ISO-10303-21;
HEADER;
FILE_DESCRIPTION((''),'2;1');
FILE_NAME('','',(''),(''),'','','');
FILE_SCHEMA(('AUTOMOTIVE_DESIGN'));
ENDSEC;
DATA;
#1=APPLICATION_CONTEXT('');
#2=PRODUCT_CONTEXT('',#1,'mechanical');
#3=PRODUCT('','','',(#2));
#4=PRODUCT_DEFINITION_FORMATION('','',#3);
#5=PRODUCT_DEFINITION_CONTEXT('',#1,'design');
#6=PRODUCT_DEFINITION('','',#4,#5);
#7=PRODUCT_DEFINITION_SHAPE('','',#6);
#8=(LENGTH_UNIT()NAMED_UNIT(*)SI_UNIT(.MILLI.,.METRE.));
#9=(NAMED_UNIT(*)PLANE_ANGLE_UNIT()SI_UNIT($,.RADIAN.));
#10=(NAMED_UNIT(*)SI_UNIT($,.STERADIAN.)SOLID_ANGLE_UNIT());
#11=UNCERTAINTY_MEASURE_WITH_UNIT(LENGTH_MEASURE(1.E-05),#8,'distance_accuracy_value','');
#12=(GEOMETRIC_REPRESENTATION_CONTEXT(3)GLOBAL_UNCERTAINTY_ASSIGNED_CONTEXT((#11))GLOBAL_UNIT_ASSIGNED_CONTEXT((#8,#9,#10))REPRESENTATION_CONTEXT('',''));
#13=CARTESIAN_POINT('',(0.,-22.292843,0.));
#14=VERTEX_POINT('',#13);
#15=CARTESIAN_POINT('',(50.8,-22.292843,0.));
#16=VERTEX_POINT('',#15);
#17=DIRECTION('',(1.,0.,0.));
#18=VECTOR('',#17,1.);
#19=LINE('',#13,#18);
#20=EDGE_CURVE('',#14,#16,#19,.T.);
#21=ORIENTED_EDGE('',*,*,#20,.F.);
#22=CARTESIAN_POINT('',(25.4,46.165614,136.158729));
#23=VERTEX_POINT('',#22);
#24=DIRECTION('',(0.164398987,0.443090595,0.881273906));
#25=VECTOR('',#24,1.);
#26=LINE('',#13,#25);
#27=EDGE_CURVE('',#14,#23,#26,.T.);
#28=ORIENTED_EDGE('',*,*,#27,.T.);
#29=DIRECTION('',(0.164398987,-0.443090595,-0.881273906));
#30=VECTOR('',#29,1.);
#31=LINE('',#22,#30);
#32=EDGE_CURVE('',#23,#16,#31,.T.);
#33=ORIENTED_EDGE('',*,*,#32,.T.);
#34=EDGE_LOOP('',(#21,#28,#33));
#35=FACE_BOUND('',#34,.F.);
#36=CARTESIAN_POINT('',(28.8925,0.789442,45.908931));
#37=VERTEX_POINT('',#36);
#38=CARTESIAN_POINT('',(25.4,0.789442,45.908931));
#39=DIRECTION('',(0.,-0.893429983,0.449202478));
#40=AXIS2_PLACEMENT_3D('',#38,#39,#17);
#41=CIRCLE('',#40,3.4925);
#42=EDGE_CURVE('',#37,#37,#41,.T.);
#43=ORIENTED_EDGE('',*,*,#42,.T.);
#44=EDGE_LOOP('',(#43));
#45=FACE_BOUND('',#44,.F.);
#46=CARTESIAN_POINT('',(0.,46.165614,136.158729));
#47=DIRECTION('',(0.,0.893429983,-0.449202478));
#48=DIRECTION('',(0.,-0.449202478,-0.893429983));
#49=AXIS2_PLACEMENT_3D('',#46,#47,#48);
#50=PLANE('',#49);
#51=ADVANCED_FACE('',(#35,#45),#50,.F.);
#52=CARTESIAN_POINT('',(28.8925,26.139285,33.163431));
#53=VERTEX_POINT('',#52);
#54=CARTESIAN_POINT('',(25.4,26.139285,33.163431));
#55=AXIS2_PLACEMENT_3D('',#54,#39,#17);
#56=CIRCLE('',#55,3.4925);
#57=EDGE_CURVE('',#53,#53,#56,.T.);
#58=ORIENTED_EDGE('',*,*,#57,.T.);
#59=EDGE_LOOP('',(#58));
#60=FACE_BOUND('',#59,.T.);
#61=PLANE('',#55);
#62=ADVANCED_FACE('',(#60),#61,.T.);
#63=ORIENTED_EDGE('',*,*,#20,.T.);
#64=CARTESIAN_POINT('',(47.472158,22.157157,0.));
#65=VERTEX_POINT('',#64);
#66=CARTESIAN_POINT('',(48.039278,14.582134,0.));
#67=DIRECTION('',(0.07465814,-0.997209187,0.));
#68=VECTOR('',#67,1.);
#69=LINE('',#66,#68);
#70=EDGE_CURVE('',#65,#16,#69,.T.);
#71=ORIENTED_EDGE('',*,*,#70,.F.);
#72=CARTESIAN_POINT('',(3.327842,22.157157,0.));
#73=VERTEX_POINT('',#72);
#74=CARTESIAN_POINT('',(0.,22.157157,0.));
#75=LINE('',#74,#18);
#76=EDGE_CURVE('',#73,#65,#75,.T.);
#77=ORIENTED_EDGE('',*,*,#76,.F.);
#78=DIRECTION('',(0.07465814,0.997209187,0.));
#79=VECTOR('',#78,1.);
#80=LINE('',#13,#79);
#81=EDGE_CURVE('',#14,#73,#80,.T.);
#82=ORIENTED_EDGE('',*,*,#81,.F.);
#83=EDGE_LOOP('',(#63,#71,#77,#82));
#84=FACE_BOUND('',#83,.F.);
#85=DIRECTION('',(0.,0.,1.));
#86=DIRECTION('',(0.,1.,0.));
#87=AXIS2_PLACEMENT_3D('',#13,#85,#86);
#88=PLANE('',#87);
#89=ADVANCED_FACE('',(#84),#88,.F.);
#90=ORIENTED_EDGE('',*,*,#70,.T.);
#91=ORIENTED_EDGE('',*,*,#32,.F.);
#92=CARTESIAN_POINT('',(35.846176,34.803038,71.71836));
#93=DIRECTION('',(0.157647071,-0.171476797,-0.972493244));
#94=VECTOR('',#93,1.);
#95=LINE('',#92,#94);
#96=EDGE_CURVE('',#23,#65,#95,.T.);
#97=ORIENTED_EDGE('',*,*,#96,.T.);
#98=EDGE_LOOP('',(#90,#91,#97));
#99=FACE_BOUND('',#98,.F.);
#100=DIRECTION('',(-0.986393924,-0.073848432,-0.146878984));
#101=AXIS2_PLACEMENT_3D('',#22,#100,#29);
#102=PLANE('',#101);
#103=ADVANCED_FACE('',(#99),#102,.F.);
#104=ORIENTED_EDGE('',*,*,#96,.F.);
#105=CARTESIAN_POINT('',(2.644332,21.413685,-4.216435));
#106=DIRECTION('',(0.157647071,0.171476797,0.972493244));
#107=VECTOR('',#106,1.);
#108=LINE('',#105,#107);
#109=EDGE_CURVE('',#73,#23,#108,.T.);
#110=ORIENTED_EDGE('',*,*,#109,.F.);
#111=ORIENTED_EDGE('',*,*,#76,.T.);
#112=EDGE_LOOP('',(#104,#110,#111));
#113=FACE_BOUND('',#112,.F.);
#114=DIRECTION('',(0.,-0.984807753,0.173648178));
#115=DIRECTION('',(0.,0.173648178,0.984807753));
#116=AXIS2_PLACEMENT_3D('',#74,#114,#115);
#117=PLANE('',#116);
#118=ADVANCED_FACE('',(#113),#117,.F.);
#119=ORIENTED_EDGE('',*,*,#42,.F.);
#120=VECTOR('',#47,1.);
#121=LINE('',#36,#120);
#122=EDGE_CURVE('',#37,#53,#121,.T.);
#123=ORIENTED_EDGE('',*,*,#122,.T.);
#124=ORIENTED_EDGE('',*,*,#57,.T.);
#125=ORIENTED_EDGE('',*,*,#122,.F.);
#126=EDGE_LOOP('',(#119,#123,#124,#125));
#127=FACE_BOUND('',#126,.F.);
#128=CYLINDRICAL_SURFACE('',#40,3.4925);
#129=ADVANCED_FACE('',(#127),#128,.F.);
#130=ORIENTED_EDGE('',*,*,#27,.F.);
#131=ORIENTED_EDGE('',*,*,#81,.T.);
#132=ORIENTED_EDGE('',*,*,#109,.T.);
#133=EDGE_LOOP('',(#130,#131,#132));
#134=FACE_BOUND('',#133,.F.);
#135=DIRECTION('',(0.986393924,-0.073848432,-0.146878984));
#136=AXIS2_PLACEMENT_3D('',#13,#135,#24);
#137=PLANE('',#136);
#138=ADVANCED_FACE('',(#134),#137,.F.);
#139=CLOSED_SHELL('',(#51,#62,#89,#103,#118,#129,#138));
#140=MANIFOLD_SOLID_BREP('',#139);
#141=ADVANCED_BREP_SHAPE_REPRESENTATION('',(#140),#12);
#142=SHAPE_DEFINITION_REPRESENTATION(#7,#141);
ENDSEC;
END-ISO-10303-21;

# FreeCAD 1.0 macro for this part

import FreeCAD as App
import Part
import Sketcher
from FreeCAD import Vector
Q = App.Units.Quantity

doc = App.newDocument("Part")
body = doc.addObject("PartDesign::Body", "Body")

# Sketch on YZ plane
sketch1 = body.newObject("Sketcher::SketchObject", "Sketch")
sketch1.AttachmentSupport = (doc.getObject("YZ_Plane"), [""])
sketch1.MapMode = "FlatFace"
sketch1.addGeometry(Part.LineSegment(Vector(46, 136, 0), Vector(-22, 0, 0)), False)
sketch1.addGeometry(Part.LineSegment(Vector(-22, 0, 0), Vector(22, 0, 0)), False)
sketch1.addGeometry(Part.LineSegment(Vector(22, 0, 0), Vector(46, 136, 0)), False)
sketch1.addConstraint(Sketcher.Constraint("Coincident", 0, 2, 1, 1))
sketch1.addConstraint(Sketcher.Constraint("Coincident", 1, 2, 2, 1))
sketch1.addConstraint(Sketcher.Constraint("Coincident", 2, 2, 0, 1))
sketch1.addConstraint(Sketcher.Constraint("Horizontal", 1))
sketch1.addConstraint(Sketcher.Constraint("PointOnObject", 0, 2, -1))
sketch1.addConstraint(Sketcher.Constraint("Distance", 0, Q("6 in")))
sketch1.addConstraint(Sketcher.Constraint("Angle", 2, Q("80 deg")))
sketch1.addConstraint(Sketcher.Constraint("DistanceX", 1, 1, 1, 2, Q("1.75 in")))
sketch1.addConstraint(Sketcher.Constraint("DistanceX", 0, 2, -1, 1, Q("22.292843 mm")))
pad1 = body.newObject("PartDesign::Pad", "Pad")
pad1.Profile = sketch1
pad1.Length = Q("2 in")

# Sketch on an angled plane
sketch2 = body.newObject("Sketcher::SketchObject", "Sketch001")
sketch2.Placement = App.Placement(Vector(0, -17.79453, 8.946808), App.Rotation(Vector(1, 0, 0), Vector(0, 0.449202478, 0.893429983), Vector(0, -0.893429983, 0.449202478), "ZXY"))
sketch2.addGeometry(Part.LineSegment(Vector(0, 142, 0), Vector(0, -10, 0)), False)
sketch2.addGeometry(Part.LineSegment(Vector(0, -10, 0), Vector(25, 142, 0)), False)
sketch2.addGeometry(Part.LineSegment(Vector(25, 142, 0), Vector(0, 142, 0)), False)
sketch2.addGeometry(Part.LineSegment(Vector(51, 142, 0), Vector(25, 142, 0)), False)
sketch2.addGeometry(Part.LineSegment(Vector(25, 142, 0), Vector(51, -10, 0)), False)
sketch2.addGeometry(Part.LineSegment(Vector(51, -10, 0), Vector(51, 142, 0)), False)
sketch2.addConstraint(Sketcher.Constraint("Coincident", 0, 2, 1, 1))
sketch2.addConstraint(Sketcher.Constraint("Coincident", 1, 2, 2, 1))
sketch2.addConstraint(Sketcher.Constraint("Coincident", 2, 2, 0, 1))
sketch2.addConstraint(Sketcher.Constraint("Coincident", 3, 2, 4, 1))
sketch2.addConstraint(Sketcher.Constraint("Coincident", 4, 2, 5, 1))
sketch2.addConstraint(Sketcher.Constraint("Coincident", 5, 2, 3, 1))
sketch2.addConstraint(Sketcher.Constraint("Vertical", 0))
sketch2.addConstraint(Sketcher.Constraint("Horizontal", 2))
sketch2.addConstraint(Sketcher.Constraint("Horizontal", 3))
sketch2.addConstraint(Sketcher.Constraint("Vertical", 5))
sketch2.addConstraint(Sketcher.Constraint("Coincident", 3, 2, 1, 2))
sketch2.addConstraint(Sketcher.Constraint("PointOnObject", 0, 2, -2))
sketch2.addConstraint(Sketcher.Constraint("Horizontal", 0, 2, 4, 2))
sketch2.addConstraint(Sketcher.Constraint("Equal", 2, 3))
sketch2.addConstraint(Sketcher.Constraint("DistanceX", 2, 2, 2, 1, Q("1 in")))
sketch2.addConstraint(Sketcher.Constraint("DistanceY", 0, 2, 0, 1, Q("6 in")))
sketch2.addConstraint(Sketcher.Constraint("DistanceY", 0, 2, -1, 1, Q("10.014 mm")))
pocket1 = body.newObject("PartDesign::Pocket", "Pocket")
pocket1.Profile = sketch2
pocket1.Type = "ThroughAll"

# Sketch on an angled plane
sketch3 = body.newObject("Sketcher::SketchObject", "Sketch002")
sketch3.Placement = App.Placement(Vector(0, -17.79453, 8.946808), App.Rotation(Vector(1, 0, 0), Vector(0, 0.449202478, 0.893429983), Vector(0, -0.893429983, 0.449202478), "ZXY"))
sketch3.addGeometry(Part.Circle(Vector(25.4, 41.4, 0), Vector(0, 0, 1), 3.5), False)
sketch3.addConstraint(Sketcher.Constraint("Diameter", 0, Q("0.275 in")))
sketch3.addConstraint(Sketcher.Constraint("DistanceX", -1, 1, 0, 3, Q("1 in")))
sketch3.addConstraint(Sketcher.Constraint("DistanceY", -1, 1, 0, 3, Q("41.371035 mm")))
pocket2 = body.newObject("PartDesign::Pocket", "Pocket001")
pocket2.Profile = sketch3
pocket2.Length = 28.37362

doc.recompute()
